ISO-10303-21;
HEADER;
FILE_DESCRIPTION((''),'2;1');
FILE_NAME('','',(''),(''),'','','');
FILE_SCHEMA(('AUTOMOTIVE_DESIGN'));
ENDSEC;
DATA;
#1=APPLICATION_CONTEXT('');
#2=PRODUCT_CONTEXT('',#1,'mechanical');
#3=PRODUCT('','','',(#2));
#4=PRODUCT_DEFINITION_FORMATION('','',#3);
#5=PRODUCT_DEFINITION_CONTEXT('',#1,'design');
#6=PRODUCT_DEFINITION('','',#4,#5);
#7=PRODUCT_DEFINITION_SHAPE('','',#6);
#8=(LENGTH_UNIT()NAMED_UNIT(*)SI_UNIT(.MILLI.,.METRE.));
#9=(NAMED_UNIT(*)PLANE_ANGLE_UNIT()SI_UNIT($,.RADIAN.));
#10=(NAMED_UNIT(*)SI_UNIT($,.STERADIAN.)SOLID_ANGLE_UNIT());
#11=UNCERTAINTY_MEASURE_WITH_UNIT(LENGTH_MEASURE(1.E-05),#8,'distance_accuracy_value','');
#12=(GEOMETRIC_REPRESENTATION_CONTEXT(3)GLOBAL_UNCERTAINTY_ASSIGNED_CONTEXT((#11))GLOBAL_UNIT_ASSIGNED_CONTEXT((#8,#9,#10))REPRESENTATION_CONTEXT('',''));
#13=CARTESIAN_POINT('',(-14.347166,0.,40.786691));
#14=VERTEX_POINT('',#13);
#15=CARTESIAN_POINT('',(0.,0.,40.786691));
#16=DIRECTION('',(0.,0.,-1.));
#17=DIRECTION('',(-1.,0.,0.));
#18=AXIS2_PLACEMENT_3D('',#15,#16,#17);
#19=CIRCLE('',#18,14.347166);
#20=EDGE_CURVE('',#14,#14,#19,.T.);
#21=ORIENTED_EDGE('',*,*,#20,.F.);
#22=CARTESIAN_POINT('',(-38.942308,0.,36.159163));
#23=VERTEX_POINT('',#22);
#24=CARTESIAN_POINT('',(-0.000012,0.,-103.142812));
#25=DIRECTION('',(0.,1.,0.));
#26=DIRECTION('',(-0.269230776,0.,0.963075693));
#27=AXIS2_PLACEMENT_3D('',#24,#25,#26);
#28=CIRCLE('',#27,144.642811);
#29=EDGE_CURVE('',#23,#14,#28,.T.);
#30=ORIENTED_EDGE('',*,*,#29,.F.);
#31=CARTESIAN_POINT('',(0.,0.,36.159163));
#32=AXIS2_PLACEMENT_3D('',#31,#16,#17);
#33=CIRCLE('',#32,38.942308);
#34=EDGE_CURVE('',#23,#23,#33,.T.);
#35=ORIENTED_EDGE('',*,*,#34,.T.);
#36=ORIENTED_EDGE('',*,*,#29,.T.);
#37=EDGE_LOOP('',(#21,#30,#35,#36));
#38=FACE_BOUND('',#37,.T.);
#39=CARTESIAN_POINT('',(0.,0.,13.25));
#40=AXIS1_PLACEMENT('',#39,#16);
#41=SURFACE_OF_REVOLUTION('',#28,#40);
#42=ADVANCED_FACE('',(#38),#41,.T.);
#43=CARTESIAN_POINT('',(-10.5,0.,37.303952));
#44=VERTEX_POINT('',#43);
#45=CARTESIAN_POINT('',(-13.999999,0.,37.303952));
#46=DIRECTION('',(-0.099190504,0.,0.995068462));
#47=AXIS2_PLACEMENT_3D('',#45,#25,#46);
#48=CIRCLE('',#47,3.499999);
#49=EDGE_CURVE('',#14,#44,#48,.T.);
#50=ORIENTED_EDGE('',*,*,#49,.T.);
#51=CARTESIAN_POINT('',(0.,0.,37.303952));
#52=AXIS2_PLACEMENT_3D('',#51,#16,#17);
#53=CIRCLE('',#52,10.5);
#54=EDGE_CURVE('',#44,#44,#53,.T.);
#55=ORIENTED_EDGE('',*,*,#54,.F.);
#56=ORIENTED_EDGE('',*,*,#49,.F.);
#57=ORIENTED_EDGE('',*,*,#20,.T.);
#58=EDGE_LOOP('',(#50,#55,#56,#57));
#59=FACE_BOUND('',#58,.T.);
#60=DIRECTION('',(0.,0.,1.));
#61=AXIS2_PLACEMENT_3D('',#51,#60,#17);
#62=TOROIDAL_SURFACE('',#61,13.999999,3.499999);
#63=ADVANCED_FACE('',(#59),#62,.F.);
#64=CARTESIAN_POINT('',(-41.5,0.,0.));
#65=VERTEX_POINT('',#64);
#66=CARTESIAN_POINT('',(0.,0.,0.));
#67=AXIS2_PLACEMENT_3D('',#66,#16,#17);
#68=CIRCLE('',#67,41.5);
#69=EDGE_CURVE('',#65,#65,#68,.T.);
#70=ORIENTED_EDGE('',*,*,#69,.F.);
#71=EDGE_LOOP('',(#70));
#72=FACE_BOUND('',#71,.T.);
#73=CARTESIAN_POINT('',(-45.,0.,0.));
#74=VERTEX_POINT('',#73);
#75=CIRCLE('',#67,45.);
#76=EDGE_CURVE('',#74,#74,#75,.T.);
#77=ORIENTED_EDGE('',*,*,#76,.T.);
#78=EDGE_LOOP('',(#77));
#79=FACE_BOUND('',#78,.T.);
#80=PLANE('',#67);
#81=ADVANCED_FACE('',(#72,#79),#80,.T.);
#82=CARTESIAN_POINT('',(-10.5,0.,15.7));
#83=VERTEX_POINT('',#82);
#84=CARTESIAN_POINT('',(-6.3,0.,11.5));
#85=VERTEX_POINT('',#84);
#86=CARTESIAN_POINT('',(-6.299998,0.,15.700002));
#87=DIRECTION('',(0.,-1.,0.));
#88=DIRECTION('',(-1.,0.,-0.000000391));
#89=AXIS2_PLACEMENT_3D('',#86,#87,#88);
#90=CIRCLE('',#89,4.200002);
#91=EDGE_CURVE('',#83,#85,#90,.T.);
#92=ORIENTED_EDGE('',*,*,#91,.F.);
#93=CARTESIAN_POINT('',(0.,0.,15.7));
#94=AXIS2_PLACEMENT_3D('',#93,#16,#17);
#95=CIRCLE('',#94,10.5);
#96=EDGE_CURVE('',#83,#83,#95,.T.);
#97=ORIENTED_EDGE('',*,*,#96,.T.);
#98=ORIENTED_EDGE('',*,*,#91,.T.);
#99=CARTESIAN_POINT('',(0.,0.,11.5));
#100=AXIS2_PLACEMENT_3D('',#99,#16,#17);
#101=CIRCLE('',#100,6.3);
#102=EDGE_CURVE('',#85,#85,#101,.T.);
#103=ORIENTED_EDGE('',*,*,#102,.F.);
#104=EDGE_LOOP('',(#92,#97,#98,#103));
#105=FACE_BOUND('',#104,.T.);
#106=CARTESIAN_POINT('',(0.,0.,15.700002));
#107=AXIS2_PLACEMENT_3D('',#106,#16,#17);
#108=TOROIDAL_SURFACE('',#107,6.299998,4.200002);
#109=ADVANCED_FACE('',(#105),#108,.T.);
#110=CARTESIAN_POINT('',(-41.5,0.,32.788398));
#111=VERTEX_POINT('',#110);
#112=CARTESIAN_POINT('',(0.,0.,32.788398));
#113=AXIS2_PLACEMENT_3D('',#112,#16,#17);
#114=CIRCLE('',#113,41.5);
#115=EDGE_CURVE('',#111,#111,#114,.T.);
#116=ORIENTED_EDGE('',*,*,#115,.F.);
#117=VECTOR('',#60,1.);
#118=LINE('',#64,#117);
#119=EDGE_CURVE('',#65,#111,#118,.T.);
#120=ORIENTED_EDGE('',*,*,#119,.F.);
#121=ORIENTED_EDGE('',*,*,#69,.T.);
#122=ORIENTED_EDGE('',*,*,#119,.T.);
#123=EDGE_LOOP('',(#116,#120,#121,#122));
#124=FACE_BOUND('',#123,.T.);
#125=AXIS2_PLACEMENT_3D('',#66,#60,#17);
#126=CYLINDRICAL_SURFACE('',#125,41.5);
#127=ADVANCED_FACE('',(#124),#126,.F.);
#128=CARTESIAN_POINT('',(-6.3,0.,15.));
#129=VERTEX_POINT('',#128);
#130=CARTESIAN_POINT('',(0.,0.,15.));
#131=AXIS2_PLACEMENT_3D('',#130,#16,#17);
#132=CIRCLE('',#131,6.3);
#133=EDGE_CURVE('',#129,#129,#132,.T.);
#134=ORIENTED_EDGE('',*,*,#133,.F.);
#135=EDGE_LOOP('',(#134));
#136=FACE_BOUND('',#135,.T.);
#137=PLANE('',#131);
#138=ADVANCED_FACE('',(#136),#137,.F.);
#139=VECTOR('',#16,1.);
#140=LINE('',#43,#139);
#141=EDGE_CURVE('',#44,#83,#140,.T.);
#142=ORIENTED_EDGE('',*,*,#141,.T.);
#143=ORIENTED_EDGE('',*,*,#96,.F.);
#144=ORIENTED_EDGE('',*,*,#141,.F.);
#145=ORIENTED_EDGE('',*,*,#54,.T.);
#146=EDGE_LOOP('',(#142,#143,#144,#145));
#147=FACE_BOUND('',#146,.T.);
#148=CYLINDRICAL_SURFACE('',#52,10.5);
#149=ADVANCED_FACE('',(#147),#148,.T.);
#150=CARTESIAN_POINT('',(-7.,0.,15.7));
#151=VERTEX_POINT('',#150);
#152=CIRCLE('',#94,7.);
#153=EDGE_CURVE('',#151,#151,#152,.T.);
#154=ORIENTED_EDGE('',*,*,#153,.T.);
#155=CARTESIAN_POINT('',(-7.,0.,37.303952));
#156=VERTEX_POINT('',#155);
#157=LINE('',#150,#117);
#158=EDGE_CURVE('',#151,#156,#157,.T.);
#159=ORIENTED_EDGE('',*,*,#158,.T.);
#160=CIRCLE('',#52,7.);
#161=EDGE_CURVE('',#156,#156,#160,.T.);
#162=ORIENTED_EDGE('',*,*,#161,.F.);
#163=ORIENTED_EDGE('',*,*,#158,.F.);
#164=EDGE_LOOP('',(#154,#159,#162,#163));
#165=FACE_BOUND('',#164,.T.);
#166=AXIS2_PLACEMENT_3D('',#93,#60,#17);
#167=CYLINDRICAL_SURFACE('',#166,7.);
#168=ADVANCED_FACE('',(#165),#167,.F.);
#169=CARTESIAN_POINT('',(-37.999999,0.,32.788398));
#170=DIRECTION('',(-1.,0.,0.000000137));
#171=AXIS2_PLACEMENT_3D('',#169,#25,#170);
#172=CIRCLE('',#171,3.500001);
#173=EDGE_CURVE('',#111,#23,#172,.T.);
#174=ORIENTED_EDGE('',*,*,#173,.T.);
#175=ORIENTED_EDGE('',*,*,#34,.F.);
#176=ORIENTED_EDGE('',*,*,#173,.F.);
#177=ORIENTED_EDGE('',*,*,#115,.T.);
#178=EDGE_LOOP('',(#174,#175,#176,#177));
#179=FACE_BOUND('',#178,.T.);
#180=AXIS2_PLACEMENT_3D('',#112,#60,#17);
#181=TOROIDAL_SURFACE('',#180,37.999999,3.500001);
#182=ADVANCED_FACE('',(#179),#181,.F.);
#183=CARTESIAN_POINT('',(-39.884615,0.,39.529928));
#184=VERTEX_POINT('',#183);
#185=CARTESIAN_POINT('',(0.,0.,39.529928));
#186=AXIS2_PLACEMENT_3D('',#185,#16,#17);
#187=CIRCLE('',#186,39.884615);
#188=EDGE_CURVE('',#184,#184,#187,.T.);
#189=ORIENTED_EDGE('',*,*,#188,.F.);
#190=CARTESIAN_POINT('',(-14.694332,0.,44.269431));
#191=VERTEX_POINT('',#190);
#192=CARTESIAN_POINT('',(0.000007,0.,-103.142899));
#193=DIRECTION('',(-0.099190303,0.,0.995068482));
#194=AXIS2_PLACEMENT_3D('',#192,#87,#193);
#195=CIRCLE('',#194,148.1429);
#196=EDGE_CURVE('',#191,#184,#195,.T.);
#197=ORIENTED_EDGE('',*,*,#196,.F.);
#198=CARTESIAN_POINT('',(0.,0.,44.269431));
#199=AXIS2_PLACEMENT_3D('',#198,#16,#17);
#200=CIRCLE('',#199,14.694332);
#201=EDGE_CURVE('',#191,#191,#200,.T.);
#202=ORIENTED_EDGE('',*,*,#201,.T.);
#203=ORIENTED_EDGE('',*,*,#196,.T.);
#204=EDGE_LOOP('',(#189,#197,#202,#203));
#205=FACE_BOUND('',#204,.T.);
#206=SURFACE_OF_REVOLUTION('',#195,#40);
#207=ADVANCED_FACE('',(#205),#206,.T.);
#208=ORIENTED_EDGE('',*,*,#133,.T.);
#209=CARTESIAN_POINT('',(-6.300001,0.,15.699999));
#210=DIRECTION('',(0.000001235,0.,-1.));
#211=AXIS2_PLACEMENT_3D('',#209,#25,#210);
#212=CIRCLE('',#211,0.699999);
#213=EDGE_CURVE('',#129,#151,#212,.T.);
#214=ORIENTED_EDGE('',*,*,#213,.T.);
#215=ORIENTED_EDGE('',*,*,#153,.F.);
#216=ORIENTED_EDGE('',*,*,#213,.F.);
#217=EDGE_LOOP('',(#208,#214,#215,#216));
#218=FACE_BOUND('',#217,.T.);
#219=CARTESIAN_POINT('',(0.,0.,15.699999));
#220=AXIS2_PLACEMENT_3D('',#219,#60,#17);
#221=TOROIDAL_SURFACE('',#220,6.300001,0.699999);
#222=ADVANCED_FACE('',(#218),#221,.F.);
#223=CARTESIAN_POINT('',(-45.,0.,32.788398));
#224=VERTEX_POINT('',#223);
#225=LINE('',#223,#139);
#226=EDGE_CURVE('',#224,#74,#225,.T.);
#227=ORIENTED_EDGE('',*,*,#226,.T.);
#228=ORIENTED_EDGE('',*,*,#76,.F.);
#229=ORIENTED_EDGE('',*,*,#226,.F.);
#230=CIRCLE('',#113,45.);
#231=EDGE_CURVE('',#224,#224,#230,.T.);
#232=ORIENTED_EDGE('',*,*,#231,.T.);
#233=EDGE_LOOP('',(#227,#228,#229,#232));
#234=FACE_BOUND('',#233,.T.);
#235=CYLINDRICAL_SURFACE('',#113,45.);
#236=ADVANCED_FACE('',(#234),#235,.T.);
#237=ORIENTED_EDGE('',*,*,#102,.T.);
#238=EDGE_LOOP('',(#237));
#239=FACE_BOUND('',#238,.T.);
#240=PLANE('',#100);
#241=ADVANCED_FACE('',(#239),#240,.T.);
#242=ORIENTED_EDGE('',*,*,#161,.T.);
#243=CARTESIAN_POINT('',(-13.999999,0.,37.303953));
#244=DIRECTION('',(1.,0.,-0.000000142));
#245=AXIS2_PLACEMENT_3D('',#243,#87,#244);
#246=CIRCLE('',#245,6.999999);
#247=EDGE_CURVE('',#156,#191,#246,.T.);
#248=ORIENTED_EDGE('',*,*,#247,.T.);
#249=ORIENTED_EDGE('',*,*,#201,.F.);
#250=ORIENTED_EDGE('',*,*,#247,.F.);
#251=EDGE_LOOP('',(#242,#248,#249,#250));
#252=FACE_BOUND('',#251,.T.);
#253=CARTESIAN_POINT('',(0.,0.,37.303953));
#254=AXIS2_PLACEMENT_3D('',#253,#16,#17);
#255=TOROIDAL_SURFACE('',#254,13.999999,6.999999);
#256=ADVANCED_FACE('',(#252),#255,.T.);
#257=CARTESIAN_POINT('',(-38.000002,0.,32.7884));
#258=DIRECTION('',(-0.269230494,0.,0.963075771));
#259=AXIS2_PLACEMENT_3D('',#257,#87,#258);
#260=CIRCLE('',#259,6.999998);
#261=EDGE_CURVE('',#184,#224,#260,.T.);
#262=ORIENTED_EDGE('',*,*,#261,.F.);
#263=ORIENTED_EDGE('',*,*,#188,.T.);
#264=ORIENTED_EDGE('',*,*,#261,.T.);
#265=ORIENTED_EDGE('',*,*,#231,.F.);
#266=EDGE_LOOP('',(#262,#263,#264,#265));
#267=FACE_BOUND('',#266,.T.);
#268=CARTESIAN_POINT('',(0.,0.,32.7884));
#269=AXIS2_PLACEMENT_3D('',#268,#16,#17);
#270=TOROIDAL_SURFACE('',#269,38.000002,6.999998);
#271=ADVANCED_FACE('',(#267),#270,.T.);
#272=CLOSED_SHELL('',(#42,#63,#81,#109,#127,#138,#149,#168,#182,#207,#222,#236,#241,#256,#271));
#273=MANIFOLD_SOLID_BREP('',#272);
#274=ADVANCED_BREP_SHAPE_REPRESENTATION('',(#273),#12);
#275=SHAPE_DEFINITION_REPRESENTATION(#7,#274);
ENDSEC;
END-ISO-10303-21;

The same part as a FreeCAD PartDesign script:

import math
import FreeCAD as App
import Part
import Sketcher
from FreeCAD import Vector

doc = App.newDocument("Part")
body = doc.addObject("PartDesign::Body", "Body")

sketch1 = doc.addObject("Sketcher::SketchObject", "Sketch")
body.addObject(sketch1)
sketch1.AttachmentSupport = (doc.XZ_Plane, [""])
sketch1.MapMode = "FlatFace"
sketch1.addGeometry(Part.LineSegment(Vector(0, 15, 0), Vector(-6.3, 15, 0)), False)
sketch1.addGeometry(Part.ArcOfCircle(Part.Circle(Vector(-6.3, 15.7, 0), Vector(0, 0, 1), 0.7), math.radians(180), math.radians(270)), False)
sketch1.addGeometry(Part.LineSegment(Vector(-7, 15.7, 0), Vector(-7, 37.3, 0)), False)
sketch1.addGeometry(Part.ArcOfCircle(Part.Circle(Vector(-14, 37.3, 0), Vector(0, 0, 1), 7), math.radians(0), math.radians(96)), False)
sketch1.addGeometry(Part.ArcOfCircle(Part.Circle(Vector(0, -103.1, 0), Vector(0, 0, 1), 148.1), math.radians(95.69), math.radians(105.62)), False)
sketch1.addGeometry(Part.ArcOfCircle(Part.Circle(Vector(-38, 32.8, 0), Vector(0, 0, 1), 7), math.radians(106), math.radians(180)), False)
sketch1.addGeometry(Part.LineSegment(Vector(-45, 32.8, 0), Vector(-45, 0, 0)), False)
sketch1.addGeometry(Part.LineSegment(Vector(-45, 0, 0), Vector(-41.5, 0, 0)), False)
sketch1.addGeometry(Part.LineSegment(Vector(-41.5, 0, 0), Vector(-41.5, 32.8, 0)), False)
sketch1.addGeometry(Part.ArcOfCircle(Part.Circle(Vector(-38, 32.8, 0), Vector(0, 0, 1), 3.5), math.radians(106), math.radians(180)), False)
sketch1.addGeometry(Part.ArcOfCircle(Part.Circle(Vector(0, -103.1, 0), Vector(0, 0, 1), 144.6), math.radians(95.69), math.radians(105.62)), False)
sketch1.addGeometry(Part.ArcOfCircle(Part.Circle(Vector(-14, 37.3, 0), Vector(0, 0, 1), 3.5), math.radians(0), math.radians(96)), False)
sketch1.addGeometry(Part.LineSegment(Vector(-10.5, 37.3, 0), Vector(-10.5, 15.7, 0)), False)
sketch1.addGeometry(Part.ArcOfCircle(Part.Circle(Vector(-6.3, 15.7, 0), Vector(0, 0, 1), 4.2), math.radians(-180), math.radians(-90)), False)
sketch1.addGeometry(Part.LineSegment(Vector(-6.3, 11.5, 0), Vector(0, 11.5, 0)), False)
sketch1.addGeometry(Part.LineSegment(Vector(0, 11.5, 0), Vector(0, 15, 0)), False)
sketch1.addConstraint(Sketcher.Constraint("Tangent", 0, 2, 1, 2))
sketch1.addConstraint(Sketcher.Constraint("Tangent", 1, 1, 2, 1))
sketch1.addConstraint(Sketcher.Constraint("Tangent", 2, 2, 3, 1))
sketch1.addConstraint(Sketcher.Constraint("Tangent", 3, 2, 4, 1))
sketch1.addConstraint(Sketcher.Constraint("Tangent", 4, 2, 5, 1))
sketch1.addConstraint(Sketcher.Constraint("Tangent", 5, 2, 6, 1))
sketch1.addConstraint(Sketcher.Constraint("Coincident", 6, 2, 7, 1))
sketch1.addConstraint(Sketcher.Constraint("Coincident", 7, 2, 8, 1))
sketch1.addConstraint(Sketcher.Constraint("Tangent", 8, 2, 9, 2))
sketch1.addConstraint(Sketcher.Constraint("Tangent", 9, 1, 10, 2))
sketch1.addConstraint(Sketcher.Constraint("Tangent", 10, 1, 11, 2))
sketch1.addConstraint(Sketcher.Constraint("Tangent", 11, 1, 12, 1))
sketch1.addConstraint(Sketcher.Constraint("Tangent", 12, 2, 13, 1))
sketch1.addConstraint(Sketcher.Constraint("Tangent", 13, 2, 14, 1))
sketch1.addConstraint(Sketcher.Constraint("Coincident", 14, 2, 15, 1))
sketch1.addConstraint(Sketcher.Constraint("Coincident", 15, 2, 0, 1))
sketch1.addConstraint(Sketcher.Constraint("Horizontal", 0))
sketch1.addConstraint(Sketcher.Constraint("Vertical", 2))
sketch1.addConstraint(Sketcher.Constraint("Vertical", 6))
sketch1.addConstraint(Sketcher.Constraint("Horizontal", 7))
sketch1.addConstraint(Sketcher.Constraint("Vertical", 8))
sketch1.addConstraint(Sketcher.Constraint("Vertical", 12))
sketch1.addConstraint(Sketcher.Constraint("Horizontal", 14))
sketch1.addConstraint(Sketcher.Constraint("Vertical", 15))
sketch1.addConstraint(Sketcher.Constraint("Coincident", 9, 3, 5, 3))
sketch1.addConstraint(Sketcher.Constraint("Coincident", 11, 3, 3, 3))
sketch1.addConstraint(Sketcher.Constraint("Coincident", 13, 3, 1, 3))
sketch1.addConstraint(Sketcher.Constraint("Equal", 3, 5))
sketch1.addConstraint(Sketcher.Constraint("Equal", 9, 11))
sketch1.addConstraint(Sketcher.Constraint("PointOnObject", 6, 2, -1))
sketch1.addConstraint(Sketcher.Constraint("PointOnObject", 14, 2, -2))
sketch1.addConstraint(Sketcher.Constraint("Radius", 3, 6.999999))
sketch1.addConstraint(Sketcher.Constraint("Radius", 1, 0.699999))
sketch1.addConstraint(Sketcher.Constraint("Radius", 9, 3.500001))
sketch1.addConstraint(Sketcher.Constraint("DistanceX", 0, 2, 0, 1, 6.3))
sketch1.addConstraint(Sketcher.Constraint("DistanceX", 9, 3, -1, 1, 37.999999))
sketch1.addConstraint(Sketcher.Constraint("DistanceY", -1, 1, 0, 2, 15.0))
sketch1.addConstraint(Sketcher.Constraint("Radius", 4, 148.1429))
sketch1.addConstraint(Sketcher.Constraint("Radius", 10, 144.642811))
sketch1.addConstraint(Sketcher.Constraint("DistanceY", 4, 3, -1, 1, 103.142899))
sketch1.addConstraint(Sketcher.Constraint("DistanceY", -1, 1, 5, 3, 32.7884))
revolution = doc.addObject("PartDesign::Revolution", "Revolution")
body.addObject(revolution)
revolution.Profile = sketch1
revolution.ReferenceAxis = (sketch1, ["V_Axis"])
revolution.Angle = 360

doc.recompute()
